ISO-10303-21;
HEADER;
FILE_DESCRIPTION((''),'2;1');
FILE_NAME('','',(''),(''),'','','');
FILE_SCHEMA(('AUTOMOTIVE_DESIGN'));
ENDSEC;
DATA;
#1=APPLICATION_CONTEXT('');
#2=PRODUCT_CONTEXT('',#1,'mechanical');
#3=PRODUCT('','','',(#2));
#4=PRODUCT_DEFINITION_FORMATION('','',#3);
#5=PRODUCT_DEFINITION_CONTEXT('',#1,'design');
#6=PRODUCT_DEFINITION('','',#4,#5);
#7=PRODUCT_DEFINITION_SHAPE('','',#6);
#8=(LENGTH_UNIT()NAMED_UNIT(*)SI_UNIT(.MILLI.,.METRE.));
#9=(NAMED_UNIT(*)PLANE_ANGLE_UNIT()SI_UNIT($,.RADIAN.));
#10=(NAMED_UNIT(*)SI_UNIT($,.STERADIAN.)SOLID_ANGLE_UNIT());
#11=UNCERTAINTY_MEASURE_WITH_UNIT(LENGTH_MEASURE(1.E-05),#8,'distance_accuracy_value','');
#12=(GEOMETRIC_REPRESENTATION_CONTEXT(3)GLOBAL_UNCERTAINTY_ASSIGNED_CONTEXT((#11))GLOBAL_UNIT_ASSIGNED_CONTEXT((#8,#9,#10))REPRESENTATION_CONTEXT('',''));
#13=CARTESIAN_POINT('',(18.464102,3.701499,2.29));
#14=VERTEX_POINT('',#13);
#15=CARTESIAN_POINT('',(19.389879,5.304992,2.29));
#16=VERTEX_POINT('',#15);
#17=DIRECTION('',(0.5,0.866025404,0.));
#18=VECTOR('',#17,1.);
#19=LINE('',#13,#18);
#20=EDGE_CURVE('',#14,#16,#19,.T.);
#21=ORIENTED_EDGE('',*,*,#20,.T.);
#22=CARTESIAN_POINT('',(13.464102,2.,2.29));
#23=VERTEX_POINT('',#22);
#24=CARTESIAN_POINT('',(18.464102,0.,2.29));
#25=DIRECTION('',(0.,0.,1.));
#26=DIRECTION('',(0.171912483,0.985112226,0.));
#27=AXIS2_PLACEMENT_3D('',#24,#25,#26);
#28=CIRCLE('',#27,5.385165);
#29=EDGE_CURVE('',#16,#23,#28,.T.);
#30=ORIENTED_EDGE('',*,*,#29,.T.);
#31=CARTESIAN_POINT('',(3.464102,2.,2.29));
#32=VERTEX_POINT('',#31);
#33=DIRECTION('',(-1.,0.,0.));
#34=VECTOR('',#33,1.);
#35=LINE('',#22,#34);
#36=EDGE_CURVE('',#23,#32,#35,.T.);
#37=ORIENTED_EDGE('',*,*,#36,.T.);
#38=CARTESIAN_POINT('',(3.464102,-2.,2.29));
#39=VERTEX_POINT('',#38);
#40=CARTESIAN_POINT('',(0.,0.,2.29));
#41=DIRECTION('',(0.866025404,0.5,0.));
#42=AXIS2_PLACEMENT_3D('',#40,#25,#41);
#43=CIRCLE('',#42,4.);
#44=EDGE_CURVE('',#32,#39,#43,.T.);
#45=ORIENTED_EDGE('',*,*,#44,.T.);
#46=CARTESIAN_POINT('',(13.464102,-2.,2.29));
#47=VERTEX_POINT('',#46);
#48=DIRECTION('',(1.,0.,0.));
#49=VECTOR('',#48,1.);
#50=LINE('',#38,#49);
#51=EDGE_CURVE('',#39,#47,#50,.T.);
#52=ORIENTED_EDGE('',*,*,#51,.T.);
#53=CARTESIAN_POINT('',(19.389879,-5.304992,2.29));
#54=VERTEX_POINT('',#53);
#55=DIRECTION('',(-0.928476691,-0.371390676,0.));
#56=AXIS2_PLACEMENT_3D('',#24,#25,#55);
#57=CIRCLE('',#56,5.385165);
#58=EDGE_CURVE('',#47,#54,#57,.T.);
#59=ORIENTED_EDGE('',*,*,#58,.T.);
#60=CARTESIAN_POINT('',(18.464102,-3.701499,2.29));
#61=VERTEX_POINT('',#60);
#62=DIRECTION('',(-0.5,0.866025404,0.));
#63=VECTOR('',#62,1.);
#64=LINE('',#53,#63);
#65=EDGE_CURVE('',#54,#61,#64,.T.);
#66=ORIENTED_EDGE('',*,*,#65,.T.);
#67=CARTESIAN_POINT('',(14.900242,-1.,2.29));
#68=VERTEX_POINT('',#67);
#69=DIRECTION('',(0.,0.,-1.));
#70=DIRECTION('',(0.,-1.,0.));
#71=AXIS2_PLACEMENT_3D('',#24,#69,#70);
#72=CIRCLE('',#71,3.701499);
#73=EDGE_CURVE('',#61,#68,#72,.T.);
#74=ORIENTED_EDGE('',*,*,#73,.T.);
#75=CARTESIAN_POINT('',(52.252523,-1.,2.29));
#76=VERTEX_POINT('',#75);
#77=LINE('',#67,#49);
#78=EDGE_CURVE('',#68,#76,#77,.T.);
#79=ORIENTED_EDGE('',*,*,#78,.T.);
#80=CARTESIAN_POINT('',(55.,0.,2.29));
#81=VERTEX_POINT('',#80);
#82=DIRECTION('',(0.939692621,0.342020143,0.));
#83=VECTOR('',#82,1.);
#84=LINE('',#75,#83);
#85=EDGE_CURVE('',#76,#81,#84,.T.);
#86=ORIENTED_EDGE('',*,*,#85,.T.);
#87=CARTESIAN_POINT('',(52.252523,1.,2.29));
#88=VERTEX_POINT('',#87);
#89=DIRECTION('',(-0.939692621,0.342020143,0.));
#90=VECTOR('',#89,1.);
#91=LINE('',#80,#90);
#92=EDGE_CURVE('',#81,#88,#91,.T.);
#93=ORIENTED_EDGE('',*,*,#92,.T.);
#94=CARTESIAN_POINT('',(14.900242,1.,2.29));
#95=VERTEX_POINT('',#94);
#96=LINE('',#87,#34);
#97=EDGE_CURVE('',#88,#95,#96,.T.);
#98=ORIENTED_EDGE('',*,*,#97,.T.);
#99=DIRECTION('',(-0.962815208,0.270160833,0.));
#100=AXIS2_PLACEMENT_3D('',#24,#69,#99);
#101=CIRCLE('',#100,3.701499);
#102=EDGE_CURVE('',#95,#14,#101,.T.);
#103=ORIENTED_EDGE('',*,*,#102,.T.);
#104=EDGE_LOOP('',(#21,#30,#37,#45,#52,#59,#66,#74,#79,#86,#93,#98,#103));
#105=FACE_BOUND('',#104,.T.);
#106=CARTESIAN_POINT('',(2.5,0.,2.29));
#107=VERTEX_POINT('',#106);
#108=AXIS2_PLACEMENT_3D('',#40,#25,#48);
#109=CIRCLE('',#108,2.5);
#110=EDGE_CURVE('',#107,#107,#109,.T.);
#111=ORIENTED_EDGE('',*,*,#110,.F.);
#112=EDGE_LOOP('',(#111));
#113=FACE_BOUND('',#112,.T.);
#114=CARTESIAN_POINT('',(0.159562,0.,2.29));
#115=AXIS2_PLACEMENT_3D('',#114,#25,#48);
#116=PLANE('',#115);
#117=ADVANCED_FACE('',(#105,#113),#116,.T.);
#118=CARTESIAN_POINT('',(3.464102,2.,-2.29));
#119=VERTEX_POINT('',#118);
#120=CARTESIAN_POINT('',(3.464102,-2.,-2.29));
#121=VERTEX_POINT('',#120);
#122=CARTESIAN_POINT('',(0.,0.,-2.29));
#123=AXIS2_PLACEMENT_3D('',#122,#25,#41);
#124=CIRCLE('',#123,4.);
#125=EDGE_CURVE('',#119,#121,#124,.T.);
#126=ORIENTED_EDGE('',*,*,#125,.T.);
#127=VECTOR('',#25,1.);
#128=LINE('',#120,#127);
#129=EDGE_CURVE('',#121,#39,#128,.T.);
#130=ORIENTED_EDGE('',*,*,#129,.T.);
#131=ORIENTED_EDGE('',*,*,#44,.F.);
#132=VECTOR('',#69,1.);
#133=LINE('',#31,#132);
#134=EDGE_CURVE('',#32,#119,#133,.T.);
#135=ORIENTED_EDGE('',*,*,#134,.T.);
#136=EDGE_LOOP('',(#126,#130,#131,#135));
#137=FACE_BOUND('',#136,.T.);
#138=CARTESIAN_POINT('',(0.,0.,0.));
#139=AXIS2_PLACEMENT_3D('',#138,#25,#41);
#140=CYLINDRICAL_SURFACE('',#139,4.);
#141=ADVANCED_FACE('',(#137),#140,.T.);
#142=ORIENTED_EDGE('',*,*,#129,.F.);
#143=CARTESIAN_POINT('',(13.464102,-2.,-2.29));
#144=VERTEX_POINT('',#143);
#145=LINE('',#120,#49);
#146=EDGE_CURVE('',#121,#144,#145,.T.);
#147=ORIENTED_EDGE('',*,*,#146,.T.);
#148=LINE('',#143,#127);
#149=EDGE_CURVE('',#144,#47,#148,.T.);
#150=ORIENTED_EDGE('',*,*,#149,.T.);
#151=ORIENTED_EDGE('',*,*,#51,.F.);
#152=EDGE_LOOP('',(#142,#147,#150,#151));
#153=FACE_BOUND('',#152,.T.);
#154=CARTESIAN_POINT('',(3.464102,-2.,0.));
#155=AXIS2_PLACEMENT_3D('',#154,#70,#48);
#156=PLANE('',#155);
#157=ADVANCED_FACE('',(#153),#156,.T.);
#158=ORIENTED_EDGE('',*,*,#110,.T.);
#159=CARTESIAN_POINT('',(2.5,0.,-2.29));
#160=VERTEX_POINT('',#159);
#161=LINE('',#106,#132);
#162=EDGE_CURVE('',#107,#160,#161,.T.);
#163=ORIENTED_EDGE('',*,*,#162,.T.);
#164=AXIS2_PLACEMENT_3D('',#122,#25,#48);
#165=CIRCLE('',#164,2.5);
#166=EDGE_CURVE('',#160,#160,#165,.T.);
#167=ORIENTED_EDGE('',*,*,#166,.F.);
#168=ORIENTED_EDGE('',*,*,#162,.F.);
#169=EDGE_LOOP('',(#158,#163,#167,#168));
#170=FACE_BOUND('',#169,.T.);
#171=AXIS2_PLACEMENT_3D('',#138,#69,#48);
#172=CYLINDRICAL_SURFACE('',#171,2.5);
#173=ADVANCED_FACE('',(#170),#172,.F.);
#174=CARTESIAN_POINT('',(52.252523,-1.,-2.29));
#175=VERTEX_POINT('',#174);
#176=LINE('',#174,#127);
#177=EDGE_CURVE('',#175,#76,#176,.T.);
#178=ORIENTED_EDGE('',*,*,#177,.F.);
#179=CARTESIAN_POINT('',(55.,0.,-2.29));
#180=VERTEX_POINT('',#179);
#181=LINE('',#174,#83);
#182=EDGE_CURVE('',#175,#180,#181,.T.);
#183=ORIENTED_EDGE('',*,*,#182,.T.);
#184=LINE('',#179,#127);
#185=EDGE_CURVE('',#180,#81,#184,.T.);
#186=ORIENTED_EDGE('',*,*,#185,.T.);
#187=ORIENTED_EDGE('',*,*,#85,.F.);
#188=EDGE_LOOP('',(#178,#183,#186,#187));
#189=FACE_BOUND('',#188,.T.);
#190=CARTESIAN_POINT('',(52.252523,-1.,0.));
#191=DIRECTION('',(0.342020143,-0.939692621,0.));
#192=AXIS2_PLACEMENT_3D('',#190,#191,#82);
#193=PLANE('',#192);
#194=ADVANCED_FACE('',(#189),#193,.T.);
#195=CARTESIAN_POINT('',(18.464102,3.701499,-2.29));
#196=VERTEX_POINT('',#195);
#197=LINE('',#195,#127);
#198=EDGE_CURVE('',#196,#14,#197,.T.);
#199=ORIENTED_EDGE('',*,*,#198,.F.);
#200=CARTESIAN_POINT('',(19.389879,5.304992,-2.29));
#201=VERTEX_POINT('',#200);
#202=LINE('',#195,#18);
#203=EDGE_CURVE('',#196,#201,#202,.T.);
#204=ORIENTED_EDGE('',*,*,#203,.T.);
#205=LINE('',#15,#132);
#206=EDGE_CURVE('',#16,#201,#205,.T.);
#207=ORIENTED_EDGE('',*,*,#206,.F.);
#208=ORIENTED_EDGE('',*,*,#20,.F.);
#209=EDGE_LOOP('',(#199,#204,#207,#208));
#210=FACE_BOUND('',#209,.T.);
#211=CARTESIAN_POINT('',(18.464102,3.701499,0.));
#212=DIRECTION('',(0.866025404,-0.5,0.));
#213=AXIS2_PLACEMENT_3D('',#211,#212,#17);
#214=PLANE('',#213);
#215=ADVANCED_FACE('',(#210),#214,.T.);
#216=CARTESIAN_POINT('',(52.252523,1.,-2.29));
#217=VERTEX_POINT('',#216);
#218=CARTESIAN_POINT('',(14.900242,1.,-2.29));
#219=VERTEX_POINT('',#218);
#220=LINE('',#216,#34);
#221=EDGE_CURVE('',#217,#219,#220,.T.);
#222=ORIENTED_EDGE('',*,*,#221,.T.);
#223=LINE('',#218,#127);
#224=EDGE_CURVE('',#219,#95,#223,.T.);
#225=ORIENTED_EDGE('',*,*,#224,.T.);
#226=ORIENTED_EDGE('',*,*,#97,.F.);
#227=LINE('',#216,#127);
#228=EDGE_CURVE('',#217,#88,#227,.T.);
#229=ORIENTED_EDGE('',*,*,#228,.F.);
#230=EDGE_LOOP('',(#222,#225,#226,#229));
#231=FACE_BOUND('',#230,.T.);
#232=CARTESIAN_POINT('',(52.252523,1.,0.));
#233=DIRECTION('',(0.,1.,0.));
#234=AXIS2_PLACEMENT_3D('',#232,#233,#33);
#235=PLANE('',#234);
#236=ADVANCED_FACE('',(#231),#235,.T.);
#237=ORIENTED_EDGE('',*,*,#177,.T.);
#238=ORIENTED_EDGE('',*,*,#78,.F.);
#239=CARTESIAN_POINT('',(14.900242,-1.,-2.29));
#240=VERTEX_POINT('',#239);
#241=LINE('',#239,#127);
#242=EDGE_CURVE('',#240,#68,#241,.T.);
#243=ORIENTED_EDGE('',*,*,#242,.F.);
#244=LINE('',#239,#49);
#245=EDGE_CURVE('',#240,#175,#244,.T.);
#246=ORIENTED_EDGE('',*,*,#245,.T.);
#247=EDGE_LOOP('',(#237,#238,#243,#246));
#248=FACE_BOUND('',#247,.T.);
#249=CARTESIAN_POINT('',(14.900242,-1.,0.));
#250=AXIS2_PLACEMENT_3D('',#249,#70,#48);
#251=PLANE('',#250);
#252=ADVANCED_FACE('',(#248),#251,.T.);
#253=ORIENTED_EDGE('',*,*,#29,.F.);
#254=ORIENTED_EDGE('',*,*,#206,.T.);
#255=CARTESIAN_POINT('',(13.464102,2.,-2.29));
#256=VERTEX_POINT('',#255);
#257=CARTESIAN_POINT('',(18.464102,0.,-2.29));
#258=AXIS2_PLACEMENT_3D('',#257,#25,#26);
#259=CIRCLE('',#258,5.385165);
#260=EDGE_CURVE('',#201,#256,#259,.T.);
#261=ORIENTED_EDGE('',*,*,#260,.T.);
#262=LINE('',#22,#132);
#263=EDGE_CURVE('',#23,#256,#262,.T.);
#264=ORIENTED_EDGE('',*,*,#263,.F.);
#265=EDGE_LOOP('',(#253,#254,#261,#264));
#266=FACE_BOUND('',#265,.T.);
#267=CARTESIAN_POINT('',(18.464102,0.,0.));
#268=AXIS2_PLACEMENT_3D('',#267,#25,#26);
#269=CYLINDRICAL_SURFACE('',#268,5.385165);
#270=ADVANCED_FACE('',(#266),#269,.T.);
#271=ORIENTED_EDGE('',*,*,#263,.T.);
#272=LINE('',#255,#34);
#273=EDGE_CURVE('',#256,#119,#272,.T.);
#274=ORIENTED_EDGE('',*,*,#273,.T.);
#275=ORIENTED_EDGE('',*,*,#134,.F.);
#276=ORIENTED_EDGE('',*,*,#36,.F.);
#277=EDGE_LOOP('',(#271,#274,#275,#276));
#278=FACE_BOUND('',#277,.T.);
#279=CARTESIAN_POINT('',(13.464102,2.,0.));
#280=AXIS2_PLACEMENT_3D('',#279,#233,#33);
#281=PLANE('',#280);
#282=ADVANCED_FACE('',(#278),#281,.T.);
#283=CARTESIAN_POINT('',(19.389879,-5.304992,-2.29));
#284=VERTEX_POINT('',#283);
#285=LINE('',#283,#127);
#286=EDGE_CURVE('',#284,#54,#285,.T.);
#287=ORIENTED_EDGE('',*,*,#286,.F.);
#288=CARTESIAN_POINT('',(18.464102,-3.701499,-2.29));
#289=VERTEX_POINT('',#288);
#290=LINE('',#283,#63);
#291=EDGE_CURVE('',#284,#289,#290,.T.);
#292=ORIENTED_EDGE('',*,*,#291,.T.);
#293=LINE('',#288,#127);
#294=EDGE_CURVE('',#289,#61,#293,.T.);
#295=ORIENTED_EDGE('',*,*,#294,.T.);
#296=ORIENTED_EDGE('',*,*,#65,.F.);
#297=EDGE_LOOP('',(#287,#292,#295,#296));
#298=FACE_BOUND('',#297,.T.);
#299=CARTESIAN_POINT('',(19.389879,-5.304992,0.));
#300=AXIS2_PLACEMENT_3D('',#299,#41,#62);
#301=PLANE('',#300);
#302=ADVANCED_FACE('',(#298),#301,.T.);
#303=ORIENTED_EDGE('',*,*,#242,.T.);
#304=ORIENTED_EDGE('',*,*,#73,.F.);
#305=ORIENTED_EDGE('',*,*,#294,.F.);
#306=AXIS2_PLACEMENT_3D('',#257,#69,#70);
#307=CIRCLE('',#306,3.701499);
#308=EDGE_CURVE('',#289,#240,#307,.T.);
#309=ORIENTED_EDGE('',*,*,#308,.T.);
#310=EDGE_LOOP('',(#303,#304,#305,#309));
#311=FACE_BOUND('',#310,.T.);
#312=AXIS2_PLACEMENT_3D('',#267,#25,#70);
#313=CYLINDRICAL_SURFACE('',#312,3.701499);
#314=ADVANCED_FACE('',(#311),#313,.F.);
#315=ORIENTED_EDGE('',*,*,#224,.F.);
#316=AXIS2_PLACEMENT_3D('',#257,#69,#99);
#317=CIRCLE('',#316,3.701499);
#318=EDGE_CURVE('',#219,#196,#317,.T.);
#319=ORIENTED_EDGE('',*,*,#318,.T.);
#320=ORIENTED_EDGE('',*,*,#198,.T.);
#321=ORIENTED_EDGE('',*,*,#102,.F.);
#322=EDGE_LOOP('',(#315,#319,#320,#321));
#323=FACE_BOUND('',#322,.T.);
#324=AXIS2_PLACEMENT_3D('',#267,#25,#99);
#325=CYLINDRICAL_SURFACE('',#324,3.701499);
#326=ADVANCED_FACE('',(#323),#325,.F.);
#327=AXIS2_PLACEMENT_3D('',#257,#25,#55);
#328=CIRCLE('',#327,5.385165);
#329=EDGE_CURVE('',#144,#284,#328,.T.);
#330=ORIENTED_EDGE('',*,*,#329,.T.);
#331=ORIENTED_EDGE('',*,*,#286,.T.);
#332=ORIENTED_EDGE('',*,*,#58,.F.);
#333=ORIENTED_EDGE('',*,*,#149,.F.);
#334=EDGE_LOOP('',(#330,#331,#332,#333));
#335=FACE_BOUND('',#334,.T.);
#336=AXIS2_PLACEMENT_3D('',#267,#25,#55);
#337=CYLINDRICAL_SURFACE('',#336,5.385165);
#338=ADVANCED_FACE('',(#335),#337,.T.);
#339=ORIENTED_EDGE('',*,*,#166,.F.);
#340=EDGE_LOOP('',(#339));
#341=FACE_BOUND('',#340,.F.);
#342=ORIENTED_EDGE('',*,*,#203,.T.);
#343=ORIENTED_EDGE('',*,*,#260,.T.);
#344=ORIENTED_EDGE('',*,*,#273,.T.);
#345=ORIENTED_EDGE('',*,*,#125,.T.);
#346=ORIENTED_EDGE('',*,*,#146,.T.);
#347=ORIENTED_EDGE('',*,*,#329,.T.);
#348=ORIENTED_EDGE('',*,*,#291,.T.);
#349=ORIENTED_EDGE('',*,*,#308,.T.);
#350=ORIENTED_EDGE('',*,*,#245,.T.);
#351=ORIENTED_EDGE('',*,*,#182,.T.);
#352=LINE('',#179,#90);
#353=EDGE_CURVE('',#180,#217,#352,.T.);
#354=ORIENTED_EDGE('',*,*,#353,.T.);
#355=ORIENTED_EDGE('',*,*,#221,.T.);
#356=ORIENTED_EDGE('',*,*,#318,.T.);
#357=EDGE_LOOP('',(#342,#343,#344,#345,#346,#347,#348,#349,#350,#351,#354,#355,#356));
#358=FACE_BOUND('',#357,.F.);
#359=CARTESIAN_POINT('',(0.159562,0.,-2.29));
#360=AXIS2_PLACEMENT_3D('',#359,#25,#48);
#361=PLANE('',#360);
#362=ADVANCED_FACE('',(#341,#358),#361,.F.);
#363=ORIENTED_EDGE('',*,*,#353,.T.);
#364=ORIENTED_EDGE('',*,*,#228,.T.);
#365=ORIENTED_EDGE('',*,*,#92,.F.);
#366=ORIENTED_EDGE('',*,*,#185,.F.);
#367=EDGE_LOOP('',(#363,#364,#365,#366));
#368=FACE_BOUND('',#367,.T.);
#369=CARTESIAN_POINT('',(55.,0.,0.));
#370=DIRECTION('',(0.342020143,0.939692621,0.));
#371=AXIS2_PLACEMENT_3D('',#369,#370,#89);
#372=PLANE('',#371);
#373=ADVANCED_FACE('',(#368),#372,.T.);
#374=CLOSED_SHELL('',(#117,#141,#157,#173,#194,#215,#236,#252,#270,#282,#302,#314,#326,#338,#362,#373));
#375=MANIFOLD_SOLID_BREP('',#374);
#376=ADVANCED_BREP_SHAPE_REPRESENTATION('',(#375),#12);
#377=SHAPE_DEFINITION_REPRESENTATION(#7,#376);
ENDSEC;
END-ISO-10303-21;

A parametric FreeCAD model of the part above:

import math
import FreeCAD as App
import Part
import Sketcher
Q = App.Units.Quantity

doc = App.newDocument("Part")
body = doc.addObject("PartDesign::Body", "Body")

# Sketch on XY plane
sketch1 = body.newObject("Sketcher::SketchObject", "Sketch")
sketch1.AttachmentSupport = (doc.getObject("XY_Plane"), [""])
sketch1.MapMode = "FlatFace"
sketch1.addGeometry(Part.ArcOfCircle(Part.Circle(App.Vector(0, 0, 0), App.Vector(0, 0, 1), 4), math.radians(30), math.radians(330)), False)
sketch1.addGeometry(Part.LineSegment(App.Vector(3.5, -2, 0), App.Vector(13.5, -2, 0)), False)
sketch1.addGeometry(Part.ArcOfCircle(Part.Circle(App.Vector(18.5, 0, 0), App.Vector(0, 0, 1), 5.4), math.radians(-158), math.radians(-80)), False)
sketch1.addGeometry(Part.LineSegment(App.Vector(19.4, -5.3, 0), App.Vector(18.5, -3.7, 0)), False)
sketch1.addGeometry(Part.ArcOfCircle(Part.Circle(App.Vector(18.5, 0, 0), App.Vector(0, 0, 1), 3.7), math.radians(-164), math.radians(-90)), False)
sketch1.addGeometry(Part.LineSegment(App.Vector(14.9, -1, 0), App.Vector(52.3, -1, 0)), False)
sketch1.addGeometry(Part.LineSegment(App.Vector(52.3, -1, 0), App.Vector(55, 0, 0)), False)
sketch1.addGeometry(Part.LineSegment(App.Vector(55, 0, 0), App.Vector(52.3, 1, 0)), False)
sketch1.addGeometry(Part.LineSegment(App.Vector(52.3, 1, 0), App.Vector(14.9, 1, 0)), False)
sketch1.addGeometry(Part.ArcOfCircle(Part.Circle(App.Vector(18.5, 0, 0), App.Vector(0, 0, 1), 3.7), math.radians(90), math.radians(164)), False)
sketch1.addGeometry(Part.LineSegment(App.Vector(18.5, 3.7, 0), App.Vector(19.4, 5.3, 0)), False)
sketch1.addGeometry(Part.ArcOfCircle(Part.Circle(App.Vector(18.5, 0, 0), App.Vector(0, 0, 1), 5.4), math.radians(80), math.radians(158)), False)
sketch1.addGeometry(Part.LineSegment(App.Vector(13.5, 2, 0), App.Vector(3.5, 2, 0)), False)
sketch1.addGeometry(Part.Circle(App.Vector(0, 0, 0), App.Vector(0, 0, 1), 2.5), False)
sketch1.addConstraint(Sketcher.Constraint("Coincident", 0, 2, 1, 1))
sketch1.addConstraint(Sketcher.Constraint("Coincident", 1, 2, 2, 1))
sketch1.addConstraint(Sketcher.Constraint("Coincident", 2, 2, 3, 1))
sketch1.addConstraint(Sketcher.Constraint("Coincident", 3, 2, 4, 2))
sketch1.addConstraint(Sketcher.Constraint("Coincident", 4, 1, 5, 1))
sketch1.addConstraint(Sketcher.Constraint("Coincident", 5, 2, 6, 1))
sketch1.addConstraint(Sketcher.Constraint("Coincident", 6, 2, 7, 1))
sketch1.addConstraint(Sketcher.Constraint("Coincident", 7, 2, 8, 1))
sketch1.addConstraint(Sketcher.Constraint("Coincident", 8, 2, 9, 2))
sketch1.addConstraint(Sketcher.Constraint("Coincident", 9, 1, 10, 1))
sketch1.addConstraint(Sketcher.Constraint("Coincident", 10, 2, 11, 1))
sketch1.addConstraint(Sketcher.Constraint("Coincident", 11, 2, 12, 1))
sketch1.addConstraint(Sketcher.Constraint("Coincident", 12, 2, 0, 1))
sketch1.addConstraint(Sketcher.Constraint("Horizontal", 1))
sketch1.addConstraint(Sketcher.Constraint("Horizontal", 5))
sketch1.addConstraint(Sketcher.Constraint("Horizontal", 8))
sketch1.addConstraint(Sketcher.Constraint("Horizontal", 12))
sketch1.addConstraint(Sketcher.Constraint("Coincident", 0, 3, -1, 1))
sketch1.addConstraint(Sketcher.Constraint("Coincident", 13, 3, -1, 1))
sketch1.addConstraint(Sketcher.Constraint("Coincident", 4, 3, 2, 3))
sketch1.addConstraint(Sketcher.Constraint("Coincident", 9, 3, 2, 3))
sketch1.addConstraint(Sketcher.Constraint("Coincident", 11, 3, 2, 3))
sketch1.addConstraint(Sketcher.Constraint("Equal", 4, 9))
sketch1.addConstraint(Sketcher.Constraint("Equal", 2, 11))
sketch1.addConstraint(Sketcher.Constraint("Symmetric", 5, 2, 7, 2, -1))
sketch1.addConstraint(Sketcher.Constraint("Symmetric", 3, 2, 9, 1, -1))
sketch1.addConstraint(Sketcher.Constraint("PointOnObject", 6, 2, -1))
sketch1.addConstraint(Sketcher.Constraint("Vertical", 11, 3, 3, 2))
sketch1.addConstraint(Sketcher.Constraint("Vertical", 2, 2, 10, 2))
sketch1.addConstraint(Sketcher.Constraint("Vertical", 1, 2, 11, 2))
sketch1.addConstraint(Sketcher.Constraint("Diameter", 13, Q("5 mm")))
sketch1.addConstraint(Sketcher.Constraint("Radius", 0, Q("4 mm")))
sketch1.addConstraint(Sketcher.Constraint("DistanceX", 1, 1, 1, 2, Q("10 mm")))
sketch1.addConstraint(Sketcher.Constraint("Angle", 3, Q("120 deg")))
sketch1.addConstraint(Sketcher.Constraint("Angle", 6, Q("20 deg")))
sketch1.addConstraint(Sketcher.Constraint("DistanceY", 0, 2, -1, 1, Q("2 mm")))
sketch1.addConstraint(Sketcher.Constraint("DistanceY", 4, 1, -1, 1, Q("1 mm")))
sketch1.addConstraint(Sketcher.Constraint("DistanceX", -1, 1, 6, 2, Q("55 mm")))
sketch1.addConstraint(Sketcher.Constraint("DistanceX", 0, 2, 2, 3, Q("15 mm")))
sketch1.addConstraint(Sketcher.Constraint("Radius", 4, Q("3.701499 mm")))
pad1 = body.newObject("PartDesign::Pad", "Pad")
pad1.Profile = sketch1
pad1.Length = 4.58
pad1.Midplane = True

doc.recompute()
